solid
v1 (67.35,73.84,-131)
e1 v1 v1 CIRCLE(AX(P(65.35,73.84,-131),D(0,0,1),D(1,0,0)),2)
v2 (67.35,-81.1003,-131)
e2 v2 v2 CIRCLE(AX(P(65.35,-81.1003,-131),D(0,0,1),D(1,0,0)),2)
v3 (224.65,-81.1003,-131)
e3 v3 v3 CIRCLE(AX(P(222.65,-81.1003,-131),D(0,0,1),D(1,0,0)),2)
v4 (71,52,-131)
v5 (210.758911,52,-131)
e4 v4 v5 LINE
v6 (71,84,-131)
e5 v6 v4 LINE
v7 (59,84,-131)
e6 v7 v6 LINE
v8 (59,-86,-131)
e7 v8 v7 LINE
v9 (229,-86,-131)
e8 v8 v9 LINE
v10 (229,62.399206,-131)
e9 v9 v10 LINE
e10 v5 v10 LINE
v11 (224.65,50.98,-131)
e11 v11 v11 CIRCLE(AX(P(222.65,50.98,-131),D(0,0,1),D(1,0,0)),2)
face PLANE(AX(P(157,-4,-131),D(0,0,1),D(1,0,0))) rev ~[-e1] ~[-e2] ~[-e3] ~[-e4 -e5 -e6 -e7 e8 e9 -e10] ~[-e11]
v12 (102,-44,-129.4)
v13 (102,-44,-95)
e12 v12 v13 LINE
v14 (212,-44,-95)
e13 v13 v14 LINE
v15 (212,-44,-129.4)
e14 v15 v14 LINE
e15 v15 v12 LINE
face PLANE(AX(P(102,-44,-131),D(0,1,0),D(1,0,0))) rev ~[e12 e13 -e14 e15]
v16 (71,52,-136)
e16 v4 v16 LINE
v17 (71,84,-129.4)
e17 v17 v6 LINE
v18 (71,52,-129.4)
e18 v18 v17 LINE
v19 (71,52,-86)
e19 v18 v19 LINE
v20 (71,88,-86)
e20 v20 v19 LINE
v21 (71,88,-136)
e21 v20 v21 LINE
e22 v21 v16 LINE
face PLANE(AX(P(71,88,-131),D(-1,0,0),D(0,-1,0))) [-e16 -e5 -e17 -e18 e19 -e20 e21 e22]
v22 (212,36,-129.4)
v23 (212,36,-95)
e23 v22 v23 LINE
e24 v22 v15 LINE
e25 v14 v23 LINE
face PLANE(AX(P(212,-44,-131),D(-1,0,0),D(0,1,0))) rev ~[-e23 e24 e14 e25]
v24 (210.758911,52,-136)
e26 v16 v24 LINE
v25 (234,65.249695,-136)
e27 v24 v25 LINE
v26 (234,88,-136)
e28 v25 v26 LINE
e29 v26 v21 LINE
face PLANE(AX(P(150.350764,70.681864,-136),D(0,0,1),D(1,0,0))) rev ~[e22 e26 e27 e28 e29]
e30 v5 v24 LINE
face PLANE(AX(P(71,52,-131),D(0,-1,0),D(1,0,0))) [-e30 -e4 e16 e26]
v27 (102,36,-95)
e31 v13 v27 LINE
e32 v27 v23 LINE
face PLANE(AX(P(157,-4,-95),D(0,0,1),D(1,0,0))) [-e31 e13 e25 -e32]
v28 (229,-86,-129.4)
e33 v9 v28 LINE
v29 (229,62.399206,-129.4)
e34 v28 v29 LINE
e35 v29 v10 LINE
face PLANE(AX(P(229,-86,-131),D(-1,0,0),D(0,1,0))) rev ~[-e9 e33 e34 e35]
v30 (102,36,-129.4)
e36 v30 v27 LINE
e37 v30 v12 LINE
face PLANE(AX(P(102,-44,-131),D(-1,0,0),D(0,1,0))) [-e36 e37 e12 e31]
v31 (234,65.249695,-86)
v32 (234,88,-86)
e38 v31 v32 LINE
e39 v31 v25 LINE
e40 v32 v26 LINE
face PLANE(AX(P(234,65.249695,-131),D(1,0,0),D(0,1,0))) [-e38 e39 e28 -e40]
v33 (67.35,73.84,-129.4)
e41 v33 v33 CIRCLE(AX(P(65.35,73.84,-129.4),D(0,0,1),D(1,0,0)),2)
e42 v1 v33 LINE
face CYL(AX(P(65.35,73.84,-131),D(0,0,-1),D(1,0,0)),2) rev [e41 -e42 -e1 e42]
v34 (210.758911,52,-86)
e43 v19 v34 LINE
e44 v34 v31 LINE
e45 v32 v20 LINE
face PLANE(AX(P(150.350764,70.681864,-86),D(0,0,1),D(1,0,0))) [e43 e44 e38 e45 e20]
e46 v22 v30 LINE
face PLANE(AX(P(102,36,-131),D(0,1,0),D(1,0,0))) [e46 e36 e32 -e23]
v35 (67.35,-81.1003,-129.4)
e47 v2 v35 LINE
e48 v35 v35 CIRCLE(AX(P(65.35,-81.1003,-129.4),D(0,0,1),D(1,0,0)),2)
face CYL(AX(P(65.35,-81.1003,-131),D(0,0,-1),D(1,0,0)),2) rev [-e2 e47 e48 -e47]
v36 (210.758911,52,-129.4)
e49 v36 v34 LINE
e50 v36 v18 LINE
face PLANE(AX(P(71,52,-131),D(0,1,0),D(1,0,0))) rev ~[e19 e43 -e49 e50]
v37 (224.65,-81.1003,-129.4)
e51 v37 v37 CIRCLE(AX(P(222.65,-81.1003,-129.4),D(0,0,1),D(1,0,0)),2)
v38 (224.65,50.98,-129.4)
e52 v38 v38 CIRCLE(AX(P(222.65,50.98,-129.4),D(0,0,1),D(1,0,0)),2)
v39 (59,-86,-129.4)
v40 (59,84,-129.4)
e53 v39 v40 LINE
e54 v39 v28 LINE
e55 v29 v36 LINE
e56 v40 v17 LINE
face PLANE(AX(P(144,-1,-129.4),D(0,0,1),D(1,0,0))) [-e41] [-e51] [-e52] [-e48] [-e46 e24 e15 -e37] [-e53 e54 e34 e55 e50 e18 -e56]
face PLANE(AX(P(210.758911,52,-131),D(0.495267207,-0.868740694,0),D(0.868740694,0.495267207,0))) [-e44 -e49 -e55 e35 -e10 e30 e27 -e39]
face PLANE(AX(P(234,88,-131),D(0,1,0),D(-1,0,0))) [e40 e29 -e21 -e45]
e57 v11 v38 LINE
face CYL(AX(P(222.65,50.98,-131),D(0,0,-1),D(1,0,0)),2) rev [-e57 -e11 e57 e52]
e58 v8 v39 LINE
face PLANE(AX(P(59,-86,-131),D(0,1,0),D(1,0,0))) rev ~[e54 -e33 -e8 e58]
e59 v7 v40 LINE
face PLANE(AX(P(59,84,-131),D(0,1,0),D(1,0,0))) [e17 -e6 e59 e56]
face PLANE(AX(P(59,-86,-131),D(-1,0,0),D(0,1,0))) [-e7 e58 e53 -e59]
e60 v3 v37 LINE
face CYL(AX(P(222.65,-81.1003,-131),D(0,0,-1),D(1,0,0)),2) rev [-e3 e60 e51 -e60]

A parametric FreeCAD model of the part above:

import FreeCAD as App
import Part
import Sketcher
from FreeCAD import Vector
Q = App.Units.Quantity


def add_polygon(sketch, points):
    """Adds a closed chain of lines whose ends are joined by coincident constraints."""
    first, n = sketch.GeometryCount, len(points)
    for a, b in zip(points, points[1:] + points[:1]):
        sketch.addGeometry(Part.LineSegment(App.Vector(*a, 0), App.Vector(*b, 0)), False)
    for i in range(n):
        sketch.addConstraint(Sketcher.Constraint("Coincident", first + i, 2, first + (i + 1) % n, 1))

doc = App.newDocument("Part")
body = doc.addObject("PartDesign::Body", "Body")

sketch1 = body.newObject("Sketcher::SketchObject", "Sketch")
sketch1.AttachmentSupport = (doc.getObject("XY_Plane"), [""])
sketch1.MapMode = "FlatFace"
add_polygon(sketch1, [(0, 170), (0, 0), (170, 0), (170, 170)])
sketch1.addGeometry(Part.Circle(Vector(6.35, 4.8997, 0), Vector(0, 0, 1), 2), False)
sketch1.addGeometry(Part.Circle(Vector(163.65, 4.8997, 0), Vector(0, 0, 1), 2), False)
sketch1.addGeometry(Part.Circle(Vector(6.35, 159.84, 0), Vector(0, 0, 1), 2), False)
sketch1.addGeometry(Part.Circle(Vector(163.65, 136.98, 0), Vector(0, 0, 1), 2), False)
sketch1.addConstraint([
    Sketcher.Constraint("Vertical", 0),
    Sketcher.Constraint("Horizontal", 1),
    Sketcher.Constraint("Vertical", 2),
    Sketcher.Constraint("Horizontal", 3),
    Sketcher.Constraint("Coincident", 0, 2, -1, 1),
    Sketcher.Constraint("Equal", 4, 5),
    Sketcher.Constraint("Equal", 5, 6),
    Sketcher.Constraint("Equal", 6, 7),
    Sketcher.Constraint("Horizontal", 4, 3, 5, 3),
    Sketcher.Constraint("Vertical", 4, 3, 6, 3),
    Sketcher.Constraint("Vertical", 5, 3, 7, 3),
    Sketcher.Constraint("Equal", 3, 0),
    Sketcher.Constraint("Diameter", 4, Q("4 mm")),
    Sketcher.Constraint("DistanceX", 1, 1, 1, 2, Q("170 mm")),
    Sketcher.Constraint("DistanceX", 4, 3, 5, 3, Q("157.3 mm")),
    Sketcher.Constraint("DistanceX", -1, 1, 4, 3, Q("6.35 mm")),
    Sketcher.Constraint("DistanceY", -1, 1, 6, 3, Q("159.84 mm")),
    Sketcher.Constraint("DistanceY", -1, 1, 7, 3, Q("136.98 mm")),
    Sketcher.Constraint("DistanceY", -1, 1, 4, 3, Q("4.8997 mm")),
])
pad1 = body.newObject("PartDesign::Pad", "Pad")
pad1.Profile = sketch1
pad1.Length = 1.6

sketch2 = body.newObject("Sketcher::SketchObject", "Sketch001")
sketch2.AttachmentSupport = (doc.getObject("XY_Plane"), [""])
sketch2.MapMode = "FlatFace"
add_polygon(sketch2, [(12, 174), (12, 138), (151.758911, 138), (175, 151.249695), (175, 174)])
sketch2.addConstraint([
    Sketcher.Constraint("Vertical", 0),
    Sketcher.Constraint("Horizontal", 1),
    Sketcher.Constraint("Vertical", 3),
    Sketcher.Constraint("Horizontal", 4),
    Sketcher.Constraint("DistanceX", 4, 2, 4, 1, Q("163 mm")),
    Sketcher.Constraint("DistanceY", 0, 2, 0, 1, Q("36 mm")),
    Sketcher.Constraint("DistanceX", -1, 1, 0, 2, Q("12 mm")),
    Sketcher.Constraint("DistanceY", -1, 1, 0, 2, Q("138 mm")),
    Sketcher.Constraint("DistanceX", 1, 1, 1, 2, Q("139.758911 mm")),
    Sketcher.Constraint("Distance", 2, Q("26.752619 mm")),
])
pad2 = body.newObject("PartDesign::Pad", "Pad001")
pad2.Profile = sketch2
pad2.Length = 45

sketch3 = body.newObject("Sketcher::SketchObject", "Sketch002")
sketch3.AttachmentSupport = (doc.getObject("XY_Plane"), [""])
sketch3.MapMode = "FlatFace"
add_polygon(sketch3, [(43, 122), (43, 42), (153, 42), (153, 122)])
sketch3.addConstraint([
    Sketcher.Constraint("Vertical", 0),
    Sketcher.Constraint("Horizontal", 1),
    Sketcher.Constraint("Vertical", 2),
    Sketcher.Constraint("Horizontal", 3),
    Sketcher.Constraint("DistanceX", 1, 1, 1, 2, Q("110 mm")),
    Sketcher.Constraint("DistanceY", 0, 2, 0, 1, Q("80 mm")),
    Sketcher.Constraint("DistanceX", -1, 1, 0, 2, Q("43 mm")),
    Sketcher.Constraint("DistanceY", -1, 1, 0, 2, Q("42 mm")),
])
pad3 = body.newObject("PartDesign::Pad", "Pad002")
pad3.Profile = sketch3
pad3.Length = 36

sketch4 = body.newObject("Sketcher::SketchObject", "Sketch003")
sketch4.AttachmentSupport = (doc.getObject("XY_Plane"), [""])
sketch4.MapMode = "FlatFace"
add_polygon(sketch4, [(12, 174), (12, 138), (151.758911, 138), (175, 151.249695), (175, 174)])
sketch4.addConstraint([
    Sketcher.Constraint("Vertical", 0),
    Sketcher.Constraint("Horizontal", 1),
    Sketcher.Constraint("Vertical", 3),
    Sketcher.Constraint("Horizontal", 4),
    Sketcher.Constraint("DistanceX", 4, 2, 4, 1, Q("163 mm")),
    Sketcher.Constraint("DistanceY", 0, 2, 0, 1, Q("36 mm")),
    Sketcher.Constraint("DistanceX", -1, 1, 0, 2, Q("12 mm")),
    Sketcher.Constraint("DistanceY", -1, 1, 0, 2, Q("138 mm")),
    Sketcher.Constraint("DistanceX", 1, 1, 1, 2, Q("139.758911 mm")),
    Sketcher.Constraint("Distance", 2, Q("26.752619 mm")),
])
pad4 = body.newObject("PartDesign::Pad", "Pad003")
pad4.Profile = sketch4
pad4.Length = 5
pad4.Reversed = True
body2 = doc.addObject("PartDesign::Body", "Body001")
doc.recompute()

body.Placement = App.Placement(Vector(59, -86, -131), App.Rotation(Vector(0, 0, 1), 0))
boolean = body2.newObject("PartDesign::Boolean", "Boolean")
boolean.Type = "Fuse"
boolean.addObjects([body])

doc.recompute()
